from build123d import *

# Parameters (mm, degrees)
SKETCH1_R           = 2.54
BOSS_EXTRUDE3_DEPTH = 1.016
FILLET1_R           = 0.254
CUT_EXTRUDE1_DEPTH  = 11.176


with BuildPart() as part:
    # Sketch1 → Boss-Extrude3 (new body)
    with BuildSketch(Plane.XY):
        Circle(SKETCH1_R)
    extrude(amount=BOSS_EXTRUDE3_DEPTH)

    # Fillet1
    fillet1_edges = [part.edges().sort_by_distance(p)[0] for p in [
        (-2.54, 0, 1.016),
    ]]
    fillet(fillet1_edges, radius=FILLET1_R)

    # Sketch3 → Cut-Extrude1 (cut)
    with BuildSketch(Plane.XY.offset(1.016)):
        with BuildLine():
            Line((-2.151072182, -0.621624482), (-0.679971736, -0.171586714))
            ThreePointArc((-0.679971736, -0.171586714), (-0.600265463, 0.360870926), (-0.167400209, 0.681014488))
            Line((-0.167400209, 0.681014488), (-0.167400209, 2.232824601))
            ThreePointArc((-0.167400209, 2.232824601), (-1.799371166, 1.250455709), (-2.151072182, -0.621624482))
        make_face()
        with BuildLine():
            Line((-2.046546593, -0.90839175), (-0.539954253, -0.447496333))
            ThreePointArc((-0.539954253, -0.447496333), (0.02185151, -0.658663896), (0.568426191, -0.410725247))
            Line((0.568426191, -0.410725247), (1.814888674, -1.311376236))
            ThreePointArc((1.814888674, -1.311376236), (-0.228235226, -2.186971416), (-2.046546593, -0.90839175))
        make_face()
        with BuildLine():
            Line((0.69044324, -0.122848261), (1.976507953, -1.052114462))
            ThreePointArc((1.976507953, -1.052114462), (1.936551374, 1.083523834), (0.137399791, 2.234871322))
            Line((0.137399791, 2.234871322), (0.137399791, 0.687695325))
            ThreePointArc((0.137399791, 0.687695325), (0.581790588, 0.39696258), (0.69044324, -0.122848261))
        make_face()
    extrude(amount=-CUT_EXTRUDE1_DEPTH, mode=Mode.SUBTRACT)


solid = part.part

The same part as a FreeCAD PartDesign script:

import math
import FreeCAD as App
import Part
import Sketcher
Q = App.Units.Quantity


def edges_at(feature, points):
    """Names of the edges that pass closest to the given points."""
    edges = feature.Shape.Edges
    near = lambda p: min(range(len(edges)), key=lambda i: edges[i].distToShape(Part.Vertex(*p))[0])
    return sorted({f"Edge{near(p) + 1}" for p in points})

doc = App.newDocument("Part")
params = doc.addObject("Spreadsheet::Sheet", "Params")
for row, (alias, value) in enumerate([
    ("sketch1_diameter", "0.2 in"),
    ("pad1_length", "0.04 in"),
    ("fillet_radius", "0.01 in"),
    ("pocket1_length", "0.44 in"),
], start=1):
    params.set(f"A{row}", alias)
    params.set(f"B{row}", "=" + value)
    params.setAlias(f"B{row}", alias)

body = doc.addObject("PartDesign::Body", "Body")

# Sketch on XY plane
sketch1 = body.newObject("Sketcher::SketchObject", "Sketch")
sketch1.AttachmentSupport = (doc.getObject("XY_Plane"), [""])
sketch1.MapMode = "FlatFace"
sketch1.addGeometry(Part.Circle(App.Vector(0, 0, 0), App.Vector(0, 0, 1), 2.54), False)
sketch1.addConstraint(Sketcher.Constraint("Coincident", 0, 3, -1, 1))
sketch1.addConstraint(Sketcher.Constraint("Diameter", 0, Q("0.2 in")))
sketch1.setExpression("Constraints[1]", "Params.sketch1_diameter")
pad1 = body.newObject("PartDesign::Pad", "Pad")
pad1.Profile = sketch1
pad1.setExpression("Length", "Params.pad1_length")
doc.recompute()

fillet = body.newObject("PartDesign::Fillet", "Fillet")
fillet.Base = (pad1, edges_at(pad1, [(-2.54, 0, 1.016)]))
fillet.setExpression("Radius", "Params.fillet_radius")

# Sketch on XY plane
sketch2 = body.newObject("Sketcher::SketchObject", "Sketch001")
sketch2.AttachmentSupport = (doc.getObject("XY_Plane"), [""])
sketch2.MapMode = "FlatFace"
sketch2.AttachmentOffset = App.Placement(App.Vector(0, 0, 0.04 * 25.4), App.Rotation())
sketch2.addGeometry(Part.LineSegment(App.Vector(-2.151072, -0.621624, 0), App.Vector(-0.679972, -0.171587, 0)), False)
sketch2.addGeometry(Part.ArcOfCircle(Part.Circle(App.Vector(0.002615, -0.001572, 0), App.Vector(0, 0, 1), 0.703441), math.radians(103.986323), math.radians(193.986323)), False)
sketch2.addGeometry(Part.LineSegment(App.Vector(-0.1674, 0.681014, 0), App.Vector(-0.1674, 2.232825, 0)), False)
sketch2.addGeometry(Part.ArcOfCircle(Part.Circle(App.Vector(0.111744, -0.077655, 0), App.Vector(0, 0, 1), 2.327281), math.radians(96.888878), math.radians(193.517126)), False)
sketch2.addGeometry(Part.LineSegment(App.Vector(-0.539954, -0.447496, 0), App.Vector(-2.046547, -0.908392, 0)), False)
sketch2.addGeometry(Part.ArcOfCircle(Part.Circle(App.Vector(0.008559, 0.082012, 0), App.Vector(0, 0, 1), 2.281306), math.radians(-154.269478), math.radians(-37.646314)), False)
sketch2.addGeometry(Part.LineSegment(App.Vector(1.814889, -1.311376, 0), App.Vector(0.568426, -0.410725, 0)), False)
sketch2.addGeometry(Part.ArcOfCircle(Part.Circle(App.Vector(-0.00415, 0.125079, 0), App.Vector(0, 0, 1), 0.784175), math.radians(-133.09988), math.radians(-43.09988)), False)
sketch2.addGeometry(Part.LineSegment(App.Vector(0.690443, -0.122848, 0), App.Vector(1.976508, -1.052114, 0)), False)
sketch2.addGeometry(Part.ArcOfCircle(Part.Circle(App.Vector(-0.038648, -0.021624, 0), App.Vector(0, 0, 1), 2.263352), math.radians(-27.083846), math.radians(85.538924)), False)
sketch2.addGeometry(Part.LineSegment(App.Vector(0.1374, 2.234871, 0), App.Vector(0.1374, 0.687695, 0)), False)
sketch2.addGeometry(Part.ArcOfCircle(Part.Circle(App.Vector(0.00865, 0.005902, 0), App.Vector(0, 0, 1), 0.693844), math.radians(-10.693821), math.radians(79.306179)), False)
sketch2.addConstraint(Sketcher.Constraint("Coincident", 0, 2, 1, 2))
sketch2.addConstraint(Sketcher.Constraint("Coincident", 1, 1, 2, 1))
sketch2.addConstraint(Sketcher.Constraint("Coincident", 2, 2, 3, 1))
sketch2.addConstraint(Sketcher.Constraint("Coincident", 3, 2, 0, 1))
sketch2.addConstraint(Sketcher.Constraint("Coincident", 4, 2, 5, 1))
sketch2.addConstraint(Sketcher.Constraint("Coincident", 5, 2, 6, 1))
sketch2.addConstraint(Sketcher.Constraint("Coincident", 6, 2, 7, 2))
sketch2.addConstraint(Sketcher.Constraint("Coincident", 7, 1, 4, 1))
sketch2.addConstraint(Sketcher.Constraint("Coincident", 8, 2, 9, 1))
sketch2.addConstraint(Sketcher.Constraint("Coincident", 9, 2, 10, 1))
sketch2.addConstraint(Sketcher.Constraint("Coincident", 10, 2, 11, 2))
sketch2.addConstraint(Sketcher.Constraint("Coincident", 11, 1, 8, 1))
sketch2.addConstraint(Sketcher.Constraint("Vertical", 2))
sketch2.addConstraint(Sketcher.Constraint("Vertical", 10))
sketch2.addConstraint(Sketcher.Constraint("Radius", 1, 0.703441))
sketch2.addConstraint(Sketcher.Constraint("Radius", 3, 2.327281))
sketch2.addConstraint(Sketcher.Constraint("DistanceX", 2, 2, 9, 2, Q("0.012 in")))
sketch2.addConstraint(Sketcher.Constraint("Radius", 5, 2.281306))
sketch2.addConstraint(Sketcher.Constraint("Radius", 7, 0.784175))
sketch2.addConstraint(Sketcher.Constraint("Radius", 9, 2.263352))
sketch2.addConstraint(Sketcher.Constraint("Radius", 11, 0.693844))
sketch2.addConstraint(Sketcher.Constraint("Distance", 0, 1.538399))
sketch2.addConstraint(Sketcher.Constraint("DistanceY", 2, 1, 2, 2, 1.55181))
sketch2.addConstraint(Sketcher.Constraint("DistanceY", -1, 1, 11, 3, 0.005902))
sketch2.addConstraint(Sketcher.Constraint("DistanceX", 1, 1, -1, 1, 0.1674))
sketch2.addConstraint(Sketcher.Constraint("DistanceX", 9, 3, 7, 3, 0.034498))
sketch2.addConstraint(Sketcher.Constraint("DistanceX", 7, 3, 11, 3, 0.012799))
sketch2.addConstraint(Sketcher.Constraint("DistanceY", 0, 2, 5, 3, 0.253599))
sketch2.addConstraint(Sketcher.Constraint("DistanceX", 3, 2, 0, 2, 1.4711))
sketch2.addConstraint(Sketcher.Constraint("DistanceY", 3, 2, 9, 3, 0.600001))
sketch2.addConstraint(Sketcher.Constraint("DistanceX", 4, 2, 9, 3, 2.007899))
sketch2.addConstraint(Sketcher.Constraint("DistanceY", 6, 2, 9, 3, 0.389101))
sketch2.addConstraint(Sketcher.Constraint("DistanceY", 7, 1, 11, 3, 0.453398))
sketch2.addConstraint(Sketcher.Constraint("DistanceX", 3, 3, 11, 1, 0.5787))
sketch2.addConstraint(Sketcher.Constraint("DistanceY", 10, 2, 10, 1, 1.547176))
sketch2.addConstraint(Sketcher.Constraint("DistanceY", 1, 3, -1, 1, 0.001572))
sketch2.addConstraint(Sketcher.Constraint("DistanceX", -1, 1, 5, 3, 0.008559))
sketch2.addConstraint(Sketcher.Constraint("DistanceX", 7, 3, -1, 1, 0.00415))
sketch2.addConstraint(Sketcher.Constraint("DistanceY", -1, 1, 7, 3, 0.125079))
sketch2.addConstraint(Sketcher.Constraint("DistanceX", 0, 2, -1, 1, 0.679972))
sketch2.addConstraint(Sketcher.Constraint("DistanceX", -1, 1, 5, 2, 1.814889))
sketch2.addConstraint(Sketcher.Constraint("DistanceX", 5, 2, 8, 2, 0.161619))
pocket1 = body.newObject("PartDesign::Pocket", "Pocket")
pocket1.Profile = sketch2
pocket1.setExpression("Length", "Params.pocket1_length")

doc.recompute()
